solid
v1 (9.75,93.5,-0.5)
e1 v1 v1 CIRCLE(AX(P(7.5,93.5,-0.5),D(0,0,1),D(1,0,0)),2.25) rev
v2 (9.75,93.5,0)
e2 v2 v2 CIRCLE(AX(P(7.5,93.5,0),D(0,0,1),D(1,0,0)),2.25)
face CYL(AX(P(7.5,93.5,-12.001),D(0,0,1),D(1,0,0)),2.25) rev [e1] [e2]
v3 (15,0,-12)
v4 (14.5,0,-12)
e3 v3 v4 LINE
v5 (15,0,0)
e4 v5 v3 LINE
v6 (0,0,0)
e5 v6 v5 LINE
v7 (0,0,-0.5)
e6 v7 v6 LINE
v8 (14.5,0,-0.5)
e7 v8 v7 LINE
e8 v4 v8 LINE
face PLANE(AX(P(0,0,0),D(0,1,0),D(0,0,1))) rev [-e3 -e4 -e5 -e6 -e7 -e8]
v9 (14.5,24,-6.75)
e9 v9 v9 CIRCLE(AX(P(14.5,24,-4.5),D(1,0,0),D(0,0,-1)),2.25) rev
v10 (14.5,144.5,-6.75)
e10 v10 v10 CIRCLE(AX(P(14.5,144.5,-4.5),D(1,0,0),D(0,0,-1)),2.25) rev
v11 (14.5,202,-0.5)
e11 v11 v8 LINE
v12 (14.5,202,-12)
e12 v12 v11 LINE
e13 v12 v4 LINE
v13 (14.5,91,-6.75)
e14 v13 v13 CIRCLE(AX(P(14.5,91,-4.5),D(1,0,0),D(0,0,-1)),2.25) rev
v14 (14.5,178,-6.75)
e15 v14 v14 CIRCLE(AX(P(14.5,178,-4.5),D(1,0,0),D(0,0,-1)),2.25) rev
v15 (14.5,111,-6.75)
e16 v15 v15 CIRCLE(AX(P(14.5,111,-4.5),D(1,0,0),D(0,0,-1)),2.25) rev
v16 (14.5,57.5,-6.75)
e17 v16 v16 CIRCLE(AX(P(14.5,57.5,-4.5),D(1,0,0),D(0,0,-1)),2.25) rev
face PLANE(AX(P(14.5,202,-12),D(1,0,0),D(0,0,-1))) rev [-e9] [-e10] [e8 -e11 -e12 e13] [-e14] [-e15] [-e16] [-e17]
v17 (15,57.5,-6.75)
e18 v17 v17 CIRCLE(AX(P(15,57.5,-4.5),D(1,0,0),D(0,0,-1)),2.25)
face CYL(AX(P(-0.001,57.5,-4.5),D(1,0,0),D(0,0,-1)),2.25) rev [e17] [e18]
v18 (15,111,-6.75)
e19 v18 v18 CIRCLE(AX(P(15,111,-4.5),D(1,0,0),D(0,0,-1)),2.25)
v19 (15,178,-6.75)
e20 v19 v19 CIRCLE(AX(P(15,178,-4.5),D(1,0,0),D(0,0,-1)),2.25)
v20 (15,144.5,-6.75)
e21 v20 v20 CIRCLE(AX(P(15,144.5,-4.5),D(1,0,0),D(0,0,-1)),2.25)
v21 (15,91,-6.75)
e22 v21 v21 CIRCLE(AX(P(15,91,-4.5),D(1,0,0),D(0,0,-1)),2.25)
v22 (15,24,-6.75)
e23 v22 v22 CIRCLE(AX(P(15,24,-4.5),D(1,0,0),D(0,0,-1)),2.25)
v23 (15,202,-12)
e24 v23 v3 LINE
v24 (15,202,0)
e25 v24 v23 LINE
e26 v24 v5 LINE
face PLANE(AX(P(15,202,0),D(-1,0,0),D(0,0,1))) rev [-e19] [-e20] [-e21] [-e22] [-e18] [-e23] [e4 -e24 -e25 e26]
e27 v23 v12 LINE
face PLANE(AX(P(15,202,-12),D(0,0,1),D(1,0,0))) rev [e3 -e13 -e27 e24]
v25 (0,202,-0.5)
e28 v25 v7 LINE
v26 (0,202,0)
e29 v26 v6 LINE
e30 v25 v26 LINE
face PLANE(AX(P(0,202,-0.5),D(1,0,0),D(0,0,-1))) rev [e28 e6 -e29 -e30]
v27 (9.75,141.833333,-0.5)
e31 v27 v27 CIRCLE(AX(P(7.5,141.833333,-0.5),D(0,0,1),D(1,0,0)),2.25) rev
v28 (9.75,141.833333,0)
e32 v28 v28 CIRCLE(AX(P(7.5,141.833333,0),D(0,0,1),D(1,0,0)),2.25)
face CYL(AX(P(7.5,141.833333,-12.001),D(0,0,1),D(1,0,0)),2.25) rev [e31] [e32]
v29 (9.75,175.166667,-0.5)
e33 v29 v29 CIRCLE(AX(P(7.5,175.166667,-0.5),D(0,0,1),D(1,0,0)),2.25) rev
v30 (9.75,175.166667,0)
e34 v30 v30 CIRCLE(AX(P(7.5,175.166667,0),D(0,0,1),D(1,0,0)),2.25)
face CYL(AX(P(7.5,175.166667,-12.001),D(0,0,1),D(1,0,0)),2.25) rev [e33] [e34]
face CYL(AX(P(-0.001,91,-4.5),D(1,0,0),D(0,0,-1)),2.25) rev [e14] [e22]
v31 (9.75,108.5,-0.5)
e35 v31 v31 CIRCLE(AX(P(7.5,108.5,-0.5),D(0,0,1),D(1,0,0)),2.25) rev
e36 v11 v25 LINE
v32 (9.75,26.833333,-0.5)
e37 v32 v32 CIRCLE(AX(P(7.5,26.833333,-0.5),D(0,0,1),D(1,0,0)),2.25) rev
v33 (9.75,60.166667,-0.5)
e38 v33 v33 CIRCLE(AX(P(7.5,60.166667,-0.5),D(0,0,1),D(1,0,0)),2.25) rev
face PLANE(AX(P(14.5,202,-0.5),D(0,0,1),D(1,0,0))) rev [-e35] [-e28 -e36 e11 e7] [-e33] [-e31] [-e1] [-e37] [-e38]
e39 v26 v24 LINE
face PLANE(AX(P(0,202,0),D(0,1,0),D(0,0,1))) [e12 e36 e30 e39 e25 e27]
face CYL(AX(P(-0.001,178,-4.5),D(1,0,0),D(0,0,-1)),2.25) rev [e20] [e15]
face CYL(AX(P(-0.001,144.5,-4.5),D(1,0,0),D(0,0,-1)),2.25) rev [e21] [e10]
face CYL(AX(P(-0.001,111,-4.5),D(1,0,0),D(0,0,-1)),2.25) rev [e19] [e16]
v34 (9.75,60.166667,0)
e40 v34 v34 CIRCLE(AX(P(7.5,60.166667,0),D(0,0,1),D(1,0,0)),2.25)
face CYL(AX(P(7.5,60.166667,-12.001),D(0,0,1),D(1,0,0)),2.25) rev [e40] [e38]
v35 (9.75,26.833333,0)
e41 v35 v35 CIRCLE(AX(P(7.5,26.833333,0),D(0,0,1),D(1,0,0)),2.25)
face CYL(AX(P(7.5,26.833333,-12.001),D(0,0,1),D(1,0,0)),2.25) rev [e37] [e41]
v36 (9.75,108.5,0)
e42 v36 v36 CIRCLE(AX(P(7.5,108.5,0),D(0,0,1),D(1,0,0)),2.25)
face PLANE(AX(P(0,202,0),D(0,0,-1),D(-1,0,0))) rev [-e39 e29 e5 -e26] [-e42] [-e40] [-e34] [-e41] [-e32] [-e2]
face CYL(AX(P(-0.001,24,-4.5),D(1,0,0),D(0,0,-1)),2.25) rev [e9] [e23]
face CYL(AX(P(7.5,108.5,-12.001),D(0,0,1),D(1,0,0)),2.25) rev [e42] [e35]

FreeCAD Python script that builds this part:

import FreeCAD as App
import Part
import Sketcher
Q = App.Units.Quantity


def add_polygon(sketch, points):
    """Adds a closed chain of lines whose ends are joined by coincident constraints."""
    first, n = sketch.GeometryCount, len(points)
    for a, b in zip(points, points[1:] + points[:1]):
        sketch.addGeometry(Part.LineSegment(App.Vector(*a, 0), App.Vector(*b, 0)), False)
    for i in range(n):
        sketch.addConstraint(Sketcher.Constraint("Coincident", first + i, 2, first + (i + 1) % n, 1))

doc = App.newDocument("Part")
body = doc.addObject("PartDesign::Body", "Body")

sketch1 = body.newObject("Sketcher::SketchObject", "Sketch")
sketch1.AttachmentSupport = (doc.getObject("XZ_Plane"), [""])
sketch1.MapMode = "FlatFace"
add_polygon(sketch1, [(0, 0), (15, 0), (15, -12), (14.5, -12), (14.5, -0.5), (0, -0.5)])
sketch1.addConstraint(Sketcher.Constraint("Horizontal", 0))
sketch1.addConstraint(Sketcher.Constraint("Vertical", 1))
sketch1.addConstraint(Sketcher.Constraint("Horizontal", 2))
sketch1.addConstraint(Sketcher.Constraint("Vertical", 3))
sketch1.addConstraint(Sketcher.Constraint("Horizontal", 4))
sketch1.addConstraint(Sketcher.Constraint("Vertical", 5))
sketch1.addConstraint(Sketcher.Constraint("Coincident", 5, 2, -1, 1))
sketch1.addConstraint(Sketcher.Constraint("Equal", 2, 5))
sketch1.addConstraint(Sketcher.Constraint("DistanceX", 0, 1, 0, 2, Q("15 mm")))
sketch1.addConstraint(Sketcher.Constraint("DistanceY", 1, 2, 1, 1, Q("12 mm")))
sketch1.addConstraint(Sketcher.Constraint("DistanceX", 2, 2, 2, 1, Q("0.5 mm")))
pad1 = body.newObject("PartDesign::Pad", "Pad")
pad1.Profile = sketch1
pad1.Length = 202
pad1.Reversed = True

sketch2 = body.newObject("Sketcher::SketchObject", "Sketch001")
sketch2.AttachmentSupport = (doc.getObject("XY_Plane"), [""])
sketch2.MapMode = "FlatFace"
sketch2.addGeometry(Part.Circle(App.Vector(7.5, 175.2, 0), App.Vector(0, 0, 1), 2.2), False)
sketch2.addConstraint(Sketcher.Constraint("Diameter", 0, Q("4.5 mm")))
sketch2.addConstraint(Sketcher.Constraint("DistanceX", -1, 1, 0, 3, Q("7.5 mm")))
sketch2.addConstraint(Sketcher.Constraint("DistanceY", -1, 1, 0, 3, Q("175.166667 mm")))
pocket1 = body.newObject("PartDesign::Pocket", "Pocket")
pocket1.Profile = sketch2
pocket1.Type = "UpToFirst"

sketch3 = body.newObject("Sketcher::SketchObject", "Sketch002")
sketch3.AttachmentSupport = (doc.getObject("XY_Plane"), [""])
sketch3.MapMode = "FlatFace"
sketch3.addGeometry(Part.Circle(App.Vector(7.5, 141.8, 0), App.Vector(0, 0, 1), 2.2), False)
sketch3.addConstraint(Sketcher.Constraint("Diameter", 0, Q("4.5 mm")))
sketch3.addConstraint(Sketcher.Constraint("DistanceX", -1, 1, 0, 3, Q("7.5 mm")))
sketch3.addConstraint(Sketcher.Constraint("DistanceY", -1, 1, 0, 3, Q("141.833333 mm")))
pocket2 = body.newObject("PartDesign::Pocket", "Pocket001")
pocket2.Profile = sketch3
pocket2.Type = "UpToFirst"

sketch4 = body.newObject("Sketcher::SketchObject", "Sketch003")
sketch4.AttachmentSupport = (doc.getObject("XY_Plane"), [""])
sketch4.MapMode = "FlatFace"
sketch4.addGeometry(Part.Circle(App.Vector(7.5, 108.5, 0), App.Vector(0, 0, 1), 2.2), False)
sketch4.addConstraint(Sketcher.Constraint("Diameter", 0, Q("4.5 mm")))
sketch4.addConstraint(Sketcher.Constraint("DistanceX", -1, 1, 0, 3, Q("7.5 mm")))
sketch4.addConstraint(Sketcher.Constraint("DistanceY", -1, 1, 0, 3, Q("108.5 mm")))
pocket3 = body.newObject("PartDesign::Pocket", "Pocket002")
pocket3.Profile = sketch4
pocket3.Type = "UpToFirst"

sketch5 = body.newObject("Sketcher::SketchObject", "Sketch004")
sketch5.AttachmentSupport = (doc.getObject("XY_Plane"), [""])
sketch5.MapMode = "FlatFace"
sketch5.addGeometry(Part.Circle(App.Vector(7.5, 93.5, 0), App.Vector(0, 0, 1), 2.2), False)
sketch5.addConstraint(Sketcher.Constraint("Diameter", 0, Q("4.5 mm")))
sketch5.addConstraint(Sketcher.Constraint("DistanceX", -1, 1, 0, 3, Q("7.5 mm")))
sketch5.addConstraint(Sketcher.Constraint("DistanceY", -1, 1, 0, 3, Q("93.5 mm")))
pocket4 = body.newObject("PartDesign::Pocket", "Pocket003")
pocket4.Profile = sketch5
pocket4.Type = "UpToFirst"

sketch6 = body.newObject("Sketcher::SketchObject", "Sketch005")
sketch6.AttachmentSupport = (doc.getObject("XY_Plane"), [""])
sketch6.MapMode = "FlatFace"
sketch6.addGeometry(Part.Circle(App.Vector(7.5, 60.2, 0), App.Vector(0, 0, 1), 2.2), False)
sketch6.addConstraint(Sketcher.Constraint("Diameter", 0, Q("4.5 mm")))
sketch6.addConstraint(Sketcher.Constraint("DistanceX", -1, 1, 0, 3, Q("7.5 mm")))
sketch6.addConstraint(Sketcher.Constraint("DistanceY", -1, 1, 0, 3, Q("60.166667 mm")))
pocket5 = body.newObject("PartDesign::Pocket", "Pocket004")
pocket5.Profile = sketch6
pocket5.Type = "UpToFirst"

sketch7 = body.newObject("Sketcher::SketchObject", "Sketch006")
sketch7.AttachmentSupport = (doc.getObject("XY_Plane"), [""])
sketch7.MapMode = "FlatFace"
sketch7.addGeometry(Part.Circle(App.Vector(7.5, 26.8, 0), App.Vector(0, 0, 1), 2.2), False)
sketch7.addConstraint(Sketcher.Constraint("Diameter", 0, Q("4.5 mm")))
sketch7.addConstraint(Sketcher.Constraint("DistanceX", -1, 1, 0, 3, Q("7.5 mm")))
sketch7.addConstraint(Sketcher.Constraint("DistanceY", -1, 1, 0, 3, Q("26.833333 mm")))
pocket6 = body.newObject("PartDesign::Pocket", "Pocket005")
pocket6.Profile = sketch7
pocket6.Type = "UpToFirst"

sketch8 = body.newObject("Sketcher::SketchObject", "Sketch007")
sketch8.AttachmentSupport = (doc.getObject("YZ_Plane"), [""])
sketch8.MapMode = "FlatFace"
sketch8.AttachmentOffset = App.Placement(App.Vector(0, 0, 15), App.Rotation())
sketch8.addGeometry(Part.Circle(App.Vector(24, -4.5, 0), App.Vector(0, 0, 1), 2.2), False)
sketch8.addConstraint(Sketcher.Constraint("Diameter", 0, Q("4.5 mm")))
sketch8.addConstraint(Sketcher.Constraint("DistanceX", -1, 1, 0, 3, Q("24 mm")))
sketch8.addConstraint(Sketcher.Constraint("DistanceY", 0, 3, -1, 1, Q("4.5 mm")))
pocket7 = body.newObject("PartDesign::Pocket", "Pocket006")
pocket7.Profile = sketch8
pocket7.Type = "UpToFirst"

sketch9 = body.newObject("Sketcher::SketchObject", "Sketch008")
sketch9.AttachmentSupport = (doc.getObject("YZ_Plane"), [""])
sketch9.MapMode = "FlatFace"
sketch9.AttachmentOffset = App.Placement(App.Vector(0, 0, 15), App.Rotation())
sketch9.addGeometry(Part.Circle(App.Vector(57.5, -4.5, 0), App.Vector(0, 0, 1), 2.2), False)
sketch9.addConstraint(Sketcher.Constraint("Diameter", 0, Q("4.5 mm")))
sketch9.addConstraint(Sketcher.Constraint("DistanceX", -1, 1, 0, 3, Q("57.5 mm")))
sketch9.addConstraint(Sketcher.Constraint("DistanceY", 0, 3, -1, 1, Q("4.5 mm")))
pocket8 = body.newObject("PartDesign::Pocket", "Pocket007")
pocket8.Profile = sketch9
pocket8.Type = "UpToFirst"

sketch10 = body.newObject("Sketcher::SketchObject", "Sketch009")
sketch10.AttachmentSupport = (doc.getObject("YZ_Plane"), [""])
sketch10.MapMode = "FlatFace"
sketch10.AttachmentOffset = App.Placement(App.Vector(0, 0, 15), App.Rotation())
sketch10.addGeometry(Part.Circle(App.Vector(91, -4.5, 0), App.Vector(0, 0, 1), 2.2), False)
sketch10.addConstraint(Sketcher.Constraint("Diameter", 0, Q("4.5 mm")))
sketch10.addConstraint(Sketcher.Constraint("DistanceX", -1, 1, 0, 3, Q("91 mm")))
sketch10.addConstraint(Sketcher.Constraint("DistanceY", 0, 3, -1, 1, Q("4.5 mm")))
pocket9 = body.newObject("PartDesign::Pocket", "Pocket008")
pocket9.Profile = sketch10
pocket9.Type = "UpToFirst"

sketch11 = body.newObject("Sketcher::SketchObject", "Sketch010")
sketch11.AttachmentSupport = (doc.getObject("YZ_Plane"), [""])
sketch11.MapMode = "FlatFace"
sketch11.AttachmentOffset = App.Placement(App.Vector(0, 0, 15), App.Rotation())
sketch11.addGeometry(Part.Circle(App.Vector(111, -4.5, 0), App.Vector(0, 0, 1), 2.2), False)
sketch11.addConstraint(Sketcher.Constraint("Diameter", 0, Q("4.5 mm")))
sketch11.addConstraint(Sketcher.Constraint("DistanceX", -1, 1, 0, 3, Q("111 mm")))
sketch11.addConstraint(Sketcher.Constraint("DistanceY", 0, 3, -1, 1, Q("4.5 mm")))
pocket10 = body.newObject("PartDesign::Pocket", "Pocket009")
pocket10.Profile = sketch11
pocket10.Type = "UpToFirst"

sketch12 = body.newObject("Sketcher::SketchObject", "Sketch011")
sketch12.AttachmentSupport = (doc.getObject("YZ_Plane"), [""])
sketch12.MapMode = "FlatFace"
sketch12.AttachmentOffset = App.Placement(App.Vector(0, 0, 15), App.Rotation())
sketch12.addGeometry(Part.Circle(App.Vector(144.5, -4.5, 0), App.Vector(0, 0, 1), 2.2), False)
sketch12.addConstraint(Sketcher.Constraint("Diameter", 0, Q("4.5 mm")))
sketch12.addConstraint(Sketcher.Constraint("DistanceX", -1, 1, 0, 3, Q("144.5 mm")))
sketch12.addConstraint(Sketcher.Constraint("DistanceY", 0, 3, -1, 1, Q("4.5 mm")))
pocket11 = body.newObject("PartDesign::Pocket", "Pocket010")
pocket11.Profile = sketch12
pocket11.Type = "UpToFirst"

sketch13 = body.newObject("Sketcher::SketchObject", "Sketch012")
sketch13.AttachmentSupport = (doc.getObject("YZ_Plane"), [""])
sketch13.MapMode = "FlatFace"
sketch13.AttachmentOffset = App.Placement(App.Vector(0, 0, 15), App.Rotation())
sketch13.addGeometry(Part.Circle(App.Vector(178, -4.5, 0), App.Vector(0, 0, 1), 2.2), False)
sketch13.addConstraint(Sketcher.Constraint("Diameter", 0, Q("4.5 mm")))
sketch13.addConstraint(Sketcher.Constraint("DistanceX", -1, 1, 0, 3, Q("178 mm")))
sketch13.addConstraint(Sketcher.Constraint("DistanceY", 0, 3, -1, 1, Q("4.5 mm")))
pocket12 = body.newObject("PartDesign::Pocket", "Pocket011")
pocket12.Profile = sketch13
pocket12.Type = "UpToFirst"

doc.recompute()
